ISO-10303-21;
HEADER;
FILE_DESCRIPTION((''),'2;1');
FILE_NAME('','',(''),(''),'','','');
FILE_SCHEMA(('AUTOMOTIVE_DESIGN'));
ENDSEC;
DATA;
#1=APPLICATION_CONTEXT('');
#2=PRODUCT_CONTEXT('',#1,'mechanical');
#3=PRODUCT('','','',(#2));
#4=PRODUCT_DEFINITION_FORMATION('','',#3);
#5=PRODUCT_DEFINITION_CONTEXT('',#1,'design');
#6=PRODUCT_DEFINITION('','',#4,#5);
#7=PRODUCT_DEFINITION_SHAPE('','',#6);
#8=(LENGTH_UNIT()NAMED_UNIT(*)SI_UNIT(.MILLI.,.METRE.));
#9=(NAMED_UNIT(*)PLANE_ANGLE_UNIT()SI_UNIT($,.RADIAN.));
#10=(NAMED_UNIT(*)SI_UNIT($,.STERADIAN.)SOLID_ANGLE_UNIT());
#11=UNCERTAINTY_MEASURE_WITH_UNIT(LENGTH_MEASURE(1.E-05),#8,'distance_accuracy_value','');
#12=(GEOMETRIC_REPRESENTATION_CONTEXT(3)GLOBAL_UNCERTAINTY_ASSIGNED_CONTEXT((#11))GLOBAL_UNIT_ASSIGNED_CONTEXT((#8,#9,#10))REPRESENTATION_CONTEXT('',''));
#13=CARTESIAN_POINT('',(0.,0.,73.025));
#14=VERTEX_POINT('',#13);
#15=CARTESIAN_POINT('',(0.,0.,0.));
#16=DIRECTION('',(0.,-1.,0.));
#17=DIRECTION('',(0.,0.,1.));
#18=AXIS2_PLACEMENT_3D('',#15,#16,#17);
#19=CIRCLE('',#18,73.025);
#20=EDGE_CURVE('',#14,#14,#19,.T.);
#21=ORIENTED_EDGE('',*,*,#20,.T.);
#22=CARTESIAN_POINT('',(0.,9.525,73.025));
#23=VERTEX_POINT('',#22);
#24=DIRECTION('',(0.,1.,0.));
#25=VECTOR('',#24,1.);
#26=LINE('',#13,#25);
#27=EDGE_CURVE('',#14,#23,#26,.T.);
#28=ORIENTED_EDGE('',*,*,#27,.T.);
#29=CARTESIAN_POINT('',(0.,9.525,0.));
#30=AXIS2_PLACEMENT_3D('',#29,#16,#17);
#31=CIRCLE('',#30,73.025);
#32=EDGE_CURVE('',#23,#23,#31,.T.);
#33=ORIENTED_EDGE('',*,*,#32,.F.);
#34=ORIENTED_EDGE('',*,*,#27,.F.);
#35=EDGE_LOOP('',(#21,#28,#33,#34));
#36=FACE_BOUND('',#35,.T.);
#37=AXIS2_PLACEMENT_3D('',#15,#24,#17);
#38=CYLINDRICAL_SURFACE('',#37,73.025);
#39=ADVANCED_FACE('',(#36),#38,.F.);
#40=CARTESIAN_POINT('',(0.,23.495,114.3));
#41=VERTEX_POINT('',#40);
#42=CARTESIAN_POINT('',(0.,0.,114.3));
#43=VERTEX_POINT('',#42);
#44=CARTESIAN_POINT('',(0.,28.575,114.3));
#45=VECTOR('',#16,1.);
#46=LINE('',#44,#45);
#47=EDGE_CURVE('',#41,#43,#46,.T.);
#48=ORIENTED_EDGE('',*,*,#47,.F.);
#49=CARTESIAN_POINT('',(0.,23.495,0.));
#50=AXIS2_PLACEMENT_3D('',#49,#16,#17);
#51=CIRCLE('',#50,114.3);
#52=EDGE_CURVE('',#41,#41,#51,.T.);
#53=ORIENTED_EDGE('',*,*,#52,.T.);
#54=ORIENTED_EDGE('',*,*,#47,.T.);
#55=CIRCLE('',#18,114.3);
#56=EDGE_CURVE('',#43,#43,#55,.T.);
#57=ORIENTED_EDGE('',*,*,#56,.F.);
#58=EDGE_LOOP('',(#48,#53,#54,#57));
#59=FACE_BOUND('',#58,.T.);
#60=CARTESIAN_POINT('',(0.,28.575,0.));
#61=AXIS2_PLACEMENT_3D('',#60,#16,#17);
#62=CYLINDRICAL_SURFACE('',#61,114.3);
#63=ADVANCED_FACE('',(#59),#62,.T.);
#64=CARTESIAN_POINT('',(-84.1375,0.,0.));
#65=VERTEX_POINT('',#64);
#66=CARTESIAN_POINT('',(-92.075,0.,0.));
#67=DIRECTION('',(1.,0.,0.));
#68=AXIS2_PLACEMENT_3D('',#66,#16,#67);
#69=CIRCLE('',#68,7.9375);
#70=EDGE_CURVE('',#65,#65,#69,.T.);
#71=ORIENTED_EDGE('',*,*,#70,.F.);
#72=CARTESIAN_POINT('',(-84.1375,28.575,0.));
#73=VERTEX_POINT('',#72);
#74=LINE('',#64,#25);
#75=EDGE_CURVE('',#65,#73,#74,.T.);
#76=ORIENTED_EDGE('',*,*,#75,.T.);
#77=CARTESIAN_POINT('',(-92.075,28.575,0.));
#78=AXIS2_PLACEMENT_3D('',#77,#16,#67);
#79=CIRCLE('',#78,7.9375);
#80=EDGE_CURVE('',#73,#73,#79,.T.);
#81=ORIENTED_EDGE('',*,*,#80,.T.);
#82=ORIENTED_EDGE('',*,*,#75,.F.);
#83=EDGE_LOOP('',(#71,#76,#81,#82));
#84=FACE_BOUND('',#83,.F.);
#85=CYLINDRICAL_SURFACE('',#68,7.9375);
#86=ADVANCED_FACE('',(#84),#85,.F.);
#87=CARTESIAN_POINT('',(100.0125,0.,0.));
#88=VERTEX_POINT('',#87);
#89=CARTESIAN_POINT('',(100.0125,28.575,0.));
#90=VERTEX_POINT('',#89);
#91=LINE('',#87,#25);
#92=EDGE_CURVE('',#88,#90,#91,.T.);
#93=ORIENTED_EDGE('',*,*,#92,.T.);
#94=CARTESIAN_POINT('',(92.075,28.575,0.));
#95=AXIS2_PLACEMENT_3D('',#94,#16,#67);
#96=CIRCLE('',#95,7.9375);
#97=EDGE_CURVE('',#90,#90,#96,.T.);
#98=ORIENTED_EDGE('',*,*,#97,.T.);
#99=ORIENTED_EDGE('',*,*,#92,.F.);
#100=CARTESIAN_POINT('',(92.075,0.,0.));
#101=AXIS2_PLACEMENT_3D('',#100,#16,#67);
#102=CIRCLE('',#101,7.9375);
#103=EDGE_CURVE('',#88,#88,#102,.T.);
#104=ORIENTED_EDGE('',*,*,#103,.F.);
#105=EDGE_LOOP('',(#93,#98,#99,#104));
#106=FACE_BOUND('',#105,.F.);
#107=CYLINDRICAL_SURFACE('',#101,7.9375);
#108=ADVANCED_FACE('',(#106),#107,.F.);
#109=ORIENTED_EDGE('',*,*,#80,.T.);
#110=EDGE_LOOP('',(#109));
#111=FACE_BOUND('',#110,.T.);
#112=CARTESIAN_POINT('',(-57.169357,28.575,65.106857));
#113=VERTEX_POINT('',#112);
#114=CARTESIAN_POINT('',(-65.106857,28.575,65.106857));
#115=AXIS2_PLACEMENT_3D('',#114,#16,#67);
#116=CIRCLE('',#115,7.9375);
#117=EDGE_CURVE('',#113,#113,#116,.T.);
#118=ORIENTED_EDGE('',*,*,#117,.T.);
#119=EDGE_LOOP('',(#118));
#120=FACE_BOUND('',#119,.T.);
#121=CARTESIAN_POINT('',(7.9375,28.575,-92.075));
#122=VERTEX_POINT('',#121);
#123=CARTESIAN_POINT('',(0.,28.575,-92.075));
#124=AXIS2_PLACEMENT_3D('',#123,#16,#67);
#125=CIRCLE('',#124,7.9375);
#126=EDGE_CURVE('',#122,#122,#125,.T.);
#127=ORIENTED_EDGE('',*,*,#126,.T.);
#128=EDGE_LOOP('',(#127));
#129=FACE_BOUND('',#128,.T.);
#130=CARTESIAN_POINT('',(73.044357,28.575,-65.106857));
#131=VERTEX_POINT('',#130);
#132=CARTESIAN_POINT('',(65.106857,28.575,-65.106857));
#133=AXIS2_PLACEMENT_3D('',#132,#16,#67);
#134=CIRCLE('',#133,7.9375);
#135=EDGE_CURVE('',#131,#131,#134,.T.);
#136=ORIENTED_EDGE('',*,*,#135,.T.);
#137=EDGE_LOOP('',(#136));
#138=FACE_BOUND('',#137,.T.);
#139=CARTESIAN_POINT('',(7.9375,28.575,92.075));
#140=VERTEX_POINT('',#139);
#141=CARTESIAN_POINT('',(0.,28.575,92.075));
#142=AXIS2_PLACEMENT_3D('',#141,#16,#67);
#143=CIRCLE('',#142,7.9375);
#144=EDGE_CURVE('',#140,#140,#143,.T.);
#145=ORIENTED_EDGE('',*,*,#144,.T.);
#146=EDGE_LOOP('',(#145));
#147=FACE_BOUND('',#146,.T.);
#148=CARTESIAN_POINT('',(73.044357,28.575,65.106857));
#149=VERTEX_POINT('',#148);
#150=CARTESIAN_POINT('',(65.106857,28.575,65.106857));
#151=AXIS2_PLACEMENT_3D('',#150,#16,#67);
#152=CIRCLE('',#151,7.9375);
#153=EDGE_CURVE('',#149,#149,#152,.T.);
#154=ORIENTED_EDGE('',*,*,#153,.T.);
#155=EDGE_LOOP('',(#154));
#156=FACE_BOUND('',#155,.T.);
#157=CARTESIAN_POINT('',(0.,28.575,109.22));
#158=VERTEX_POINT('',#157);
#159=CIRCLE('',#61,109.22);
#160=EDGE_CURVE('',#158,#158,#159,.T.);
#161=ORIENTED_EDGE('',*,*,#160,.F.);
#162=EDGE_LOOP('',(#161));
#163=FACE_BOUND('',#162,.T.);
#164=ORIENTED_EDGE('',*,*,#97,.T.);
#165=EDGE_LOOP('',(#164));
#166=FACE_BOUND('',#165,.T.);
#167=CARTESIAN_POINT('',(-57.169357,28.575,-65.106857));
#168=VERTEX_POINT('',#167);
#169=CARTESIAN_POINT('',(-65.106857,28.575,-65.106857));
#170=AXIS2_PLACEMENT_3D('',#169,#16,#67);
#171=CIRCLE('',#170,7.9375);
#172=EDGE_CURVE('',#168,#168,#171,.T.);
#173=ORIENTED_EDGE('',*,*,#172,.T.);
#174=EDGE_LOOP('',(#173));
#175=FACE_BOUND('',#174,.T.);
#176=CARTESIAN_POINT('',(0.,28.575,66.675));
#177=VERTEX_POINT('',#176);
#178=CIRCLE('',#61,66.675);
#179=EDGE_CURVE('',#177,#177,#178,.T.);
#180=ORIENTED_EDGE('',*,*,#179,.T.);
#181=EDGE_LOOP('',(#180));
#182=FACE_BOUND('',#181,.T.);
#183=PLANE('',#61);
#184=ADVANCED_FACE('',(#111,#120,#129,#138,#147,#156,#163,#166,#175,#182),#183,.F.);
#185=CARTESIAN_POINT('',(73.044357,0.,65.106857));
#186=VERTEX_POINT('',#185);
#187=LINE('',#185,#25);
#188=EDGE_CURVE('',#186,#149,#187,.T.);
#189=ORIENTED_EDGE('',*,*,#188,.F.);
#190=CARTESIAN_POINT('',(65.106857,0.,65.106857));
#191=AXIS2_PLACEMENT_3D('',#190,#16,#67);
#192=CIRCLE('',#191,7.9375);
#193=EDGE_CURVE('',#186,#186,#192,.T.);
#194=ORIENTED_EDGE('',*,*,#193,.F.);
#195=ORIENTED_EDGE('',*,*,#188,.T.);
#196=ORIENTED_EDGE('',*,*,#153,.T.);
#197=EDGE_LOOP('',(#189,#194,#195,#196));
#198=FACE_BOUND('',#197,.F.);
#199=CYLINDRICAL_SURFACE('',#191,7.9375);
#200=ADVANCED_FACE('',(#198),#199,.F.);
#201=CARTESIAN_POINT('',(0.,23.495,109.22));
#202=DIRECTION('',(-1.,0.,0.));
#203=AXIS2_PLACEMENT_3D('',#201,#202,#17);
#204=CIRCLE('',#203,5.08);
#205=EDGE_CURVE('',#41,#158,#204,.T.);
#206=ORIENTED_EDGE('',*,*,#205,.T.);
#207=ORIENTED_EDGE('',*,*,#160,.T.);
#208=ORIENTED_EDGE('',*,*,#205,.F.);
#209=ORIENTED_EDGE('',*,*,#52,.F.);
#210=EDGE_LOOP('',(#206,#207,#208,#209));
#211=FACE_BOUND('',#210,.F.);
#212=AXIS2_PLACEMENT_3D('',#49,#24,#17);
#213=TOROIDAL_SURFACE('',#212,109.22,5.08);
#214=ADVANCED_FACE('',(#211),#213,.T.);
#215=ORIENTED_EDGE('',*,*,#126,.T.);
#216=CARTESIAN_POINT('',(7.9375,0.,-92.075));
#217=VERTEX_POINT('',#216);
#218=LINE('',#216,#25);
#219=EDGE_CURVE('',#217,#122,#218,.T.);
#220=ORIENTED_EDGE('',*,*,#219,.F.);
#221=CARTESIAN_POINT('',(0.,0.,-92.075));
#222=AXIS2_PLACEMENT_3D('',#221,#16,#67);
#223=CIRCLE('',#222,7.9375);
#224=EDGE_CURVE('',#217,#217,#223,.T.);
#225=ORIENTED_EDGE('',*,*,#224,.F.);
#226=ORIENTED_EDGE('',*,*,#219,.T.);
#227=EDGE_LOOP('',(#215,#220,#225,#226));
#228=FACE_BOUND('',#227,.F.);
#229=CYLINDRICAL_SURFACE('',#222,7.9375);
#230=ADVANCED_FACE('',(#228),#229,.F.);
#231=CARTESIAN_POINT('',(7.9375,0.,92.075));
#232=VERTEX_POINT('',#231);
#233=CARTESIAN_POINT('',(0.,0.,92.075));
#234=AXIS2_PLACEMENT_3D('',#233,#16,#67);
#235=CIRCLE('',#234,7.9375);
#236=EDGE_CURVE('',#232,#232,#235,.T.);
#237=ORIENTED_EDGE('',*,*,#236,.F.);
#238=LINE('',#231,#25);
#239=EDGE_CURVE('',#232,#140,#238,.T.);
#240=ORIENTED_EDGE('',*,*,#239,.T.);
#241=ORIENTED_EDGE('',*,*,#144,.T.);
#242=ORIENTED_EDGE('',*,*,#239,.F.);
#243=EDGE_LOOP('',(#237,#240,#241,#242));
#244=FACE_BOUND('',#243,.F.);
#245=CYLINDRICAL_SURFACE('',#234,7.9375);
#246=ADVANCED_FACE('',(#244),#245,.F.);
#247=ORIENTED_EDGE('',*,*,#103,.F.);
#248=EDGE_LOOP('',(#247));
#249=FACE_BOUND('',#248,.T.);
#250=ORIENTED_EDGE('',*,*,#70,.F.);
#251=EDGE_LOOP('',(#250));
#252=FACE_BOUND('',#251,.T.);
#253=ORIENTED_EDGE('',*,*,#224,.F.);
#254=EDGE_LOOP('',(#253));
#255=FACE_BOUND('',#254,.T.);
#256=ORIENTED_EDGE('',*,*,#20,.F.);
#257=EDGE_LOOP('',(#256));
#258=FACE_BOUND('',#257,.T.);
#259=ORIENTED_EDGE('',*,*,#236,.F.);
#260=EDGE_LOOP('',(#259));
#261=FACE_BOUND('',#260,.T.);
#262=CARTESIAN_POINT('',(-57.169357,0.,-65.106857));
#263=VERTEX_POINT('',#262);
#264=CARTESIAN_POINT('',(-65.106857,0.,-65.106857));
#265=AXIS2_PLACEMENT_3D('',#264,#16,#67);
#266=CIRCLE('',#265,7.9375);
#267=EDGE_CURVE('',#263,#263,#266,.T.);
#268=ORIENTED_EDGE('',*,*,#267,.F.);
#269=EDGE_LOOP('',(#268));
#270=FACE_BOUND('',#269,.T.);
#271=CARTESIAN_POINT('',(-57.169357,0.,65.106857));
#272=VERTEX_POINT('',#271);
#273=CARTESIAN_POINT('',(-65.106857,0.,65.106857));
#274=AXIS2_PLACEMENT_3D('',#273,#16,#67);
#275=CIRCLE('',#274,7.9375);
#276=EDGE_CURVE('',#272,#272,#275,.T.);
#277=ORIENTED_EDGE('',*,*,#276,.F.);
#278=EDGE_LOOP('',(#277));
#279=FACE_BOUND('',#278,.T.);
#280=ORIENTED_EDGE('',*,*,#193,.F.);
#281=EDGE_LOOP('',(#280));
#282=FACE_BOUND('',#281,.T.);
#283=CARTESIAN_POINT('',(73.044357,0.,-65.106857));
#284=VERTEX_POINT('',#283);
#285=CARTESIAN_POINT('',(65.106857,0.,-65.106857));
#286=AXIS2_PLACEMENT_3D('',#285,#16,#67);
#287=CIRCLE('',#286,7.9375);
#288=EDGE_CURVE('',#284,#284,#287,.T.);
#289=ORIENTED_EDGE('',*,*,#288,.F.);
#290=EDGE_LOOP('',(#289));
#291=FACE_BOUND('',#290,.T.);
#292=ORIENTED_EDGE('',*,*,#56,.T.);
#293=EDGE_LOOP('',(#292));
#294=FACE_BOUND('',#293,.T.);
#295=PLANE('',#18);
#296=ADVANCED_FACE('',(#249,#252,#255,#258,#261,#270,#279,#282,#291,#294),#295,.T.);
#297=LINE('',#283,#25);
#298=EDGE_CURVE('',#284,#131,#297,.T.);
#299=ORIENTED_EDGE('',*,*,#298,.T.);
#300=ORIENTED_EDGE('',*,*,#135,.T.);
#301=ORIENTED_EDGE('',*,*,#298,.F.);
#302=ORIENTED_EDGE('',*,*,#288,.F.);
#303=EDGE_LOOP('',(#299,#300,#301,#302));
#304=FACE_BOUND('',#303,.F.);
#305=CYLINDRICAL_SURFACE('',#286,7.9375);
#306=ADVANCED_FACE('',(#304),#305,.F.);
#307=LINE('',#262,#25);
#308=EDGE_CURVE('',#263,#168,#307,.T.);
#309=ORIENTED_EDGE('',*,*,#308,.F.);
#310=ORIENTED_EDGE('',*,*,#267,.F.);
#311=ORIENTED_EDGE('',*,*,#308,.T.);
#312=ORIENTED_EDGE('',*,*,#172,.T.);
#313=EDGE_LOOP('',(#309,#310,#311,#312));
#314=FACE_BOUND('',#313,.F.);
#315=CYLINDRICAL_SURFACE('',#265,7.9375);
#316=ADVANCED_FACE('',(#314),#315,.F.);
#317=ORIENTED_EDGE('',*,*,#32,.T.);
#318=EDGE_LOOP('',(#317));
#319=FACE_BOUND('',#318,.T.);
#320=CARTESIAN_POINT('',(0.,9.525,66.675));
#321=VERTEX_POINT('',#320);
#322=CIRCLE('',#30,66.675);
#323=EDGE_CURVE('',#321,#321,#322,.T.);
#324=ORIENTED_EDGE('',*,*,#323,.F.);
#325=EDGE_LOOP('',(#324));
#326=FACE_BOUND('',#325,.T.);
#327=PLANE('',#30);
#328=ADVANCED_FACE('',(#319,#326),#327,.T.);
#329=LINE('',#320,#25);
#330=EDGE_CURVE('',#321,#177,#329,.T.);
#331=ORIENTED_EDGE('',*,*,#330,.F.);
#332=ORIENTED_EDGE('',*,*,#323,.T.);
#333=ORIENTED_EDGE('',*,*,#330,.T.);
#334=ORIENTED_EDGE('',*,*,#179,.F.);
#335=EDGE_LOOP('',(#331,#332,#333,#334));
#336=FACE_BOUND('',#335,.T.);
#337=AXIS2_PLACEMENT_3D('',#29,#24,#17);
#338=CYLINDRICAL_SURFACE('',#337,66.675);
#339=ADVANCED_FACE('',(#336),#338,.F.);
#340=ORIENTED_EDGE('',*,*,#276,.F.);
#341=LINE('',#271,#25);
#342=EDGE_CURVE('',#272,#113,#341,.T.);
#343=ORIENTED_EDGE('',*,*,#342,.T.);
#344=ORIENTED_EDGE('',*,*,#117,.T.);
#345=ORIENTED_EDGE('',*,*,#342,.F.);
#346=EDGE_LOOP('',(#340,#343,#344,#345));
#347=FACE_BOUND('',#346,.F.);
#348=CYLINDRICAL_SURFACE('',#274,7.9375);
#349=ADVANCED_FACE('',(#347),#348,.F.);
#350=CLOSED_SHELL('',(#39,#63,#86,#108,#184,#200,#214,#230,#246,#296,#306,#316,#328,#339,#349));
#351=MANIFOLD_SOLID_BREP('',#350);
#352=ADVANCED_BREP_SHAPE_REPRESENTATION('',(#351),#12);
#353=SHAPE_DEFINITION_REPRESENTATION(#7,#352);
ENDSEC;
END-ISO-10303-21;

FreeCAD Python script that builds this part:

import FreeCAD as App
import Part
import Sketcher
from FreeCAD import Vector
Q = App.Units.Quantity


def edges_at(feature, points):
    """Names of the edges that pass closest to the given points."""
    edges = feature.Shape.Edges
    near = lambda p: min(range(len(edges)), key=lambda i: edges[i].distToShape(Part.Vertex(*p))[0])
    return sorted({f"Edge{near(p) + 1}" for p in points})


def add_polygon(sketch, points):
    """Adds a closed chain of lines whose ends are joined by coincident constraints."""
    first, n = sketch.GeometryCount, len(points)
    for a, b in zip(points, points[1:] + points[:1]):
        sketch.addGeometry(Part.LineSegment(App.Vector(*a, 0), App.Vector(*b, 0)), False)
    for i in range(n):
        sketch.addConstraint(Sketcher.Constraint("Coincident", first + i, 2, first + (i + 1) % n, 1))

doc = App.newDocument("Part")
params = doc.addObject("Spreadsheet::Sheet", "Params")
for row, (alias, value) in enumerate([
    ("sketch1_width", "0.75 in"),
    ("sketch1_height", "0.25 in"),
    ("sketch1_width2", "1.125 in"),
    ("sketch1_height2", "1.625 in"),
    ("revolution_angle", "360 deg"),
    ("sketch2_diameter", "0.625 in"),
    ("fillet_radius", "0.2 in"),
], start=1):
    params.set(f"A{row}", alias)
    params.set(f"B{row}", "=" + value)
    params.setAlias(f"B{row}", alias)

body = doc.addObject("PartDesign::Body", "Body")

sketch1 = doc.addObject("Sketcher::SketchObject", "Sketch")
body.addObject(sketch1)
sketch1.AttachmentSupport = (doc.YZ_Plane, [""])
sketch1.MapMode = "FlatFace"
add_polygon(sketch1, [(29, 114), (0, 114), (0, 73), (10, 73), (10, 67), (29, 67)])
sketch1.addConstraint([
    Sketcher.Constraint("Horizontal", 0),
    Sketcher.Constraint("Vertical", 1),
    Sketcher.Constraint("Horizontal", 2),
    Sketcher.Constraint("Vertical", 3),
    Sketcher.Constraint("Horizontal", 4),
    Sketcher.Constraint("Vertical", 5),
    Sketcher.Constraint("PointOnObject", 0, 2, -2),
    Sketcher.Constraint("DistanceX", 4, 1, 4, 2, Q("0.75 in")),
    Sketcher.Constraint("DistanceY", 3, 2, 3, 1, Q("0.25 in")),
    Sketcher.Constraint("DistanceY", -1, 1, 0, 2, Q("4.5 in")),
    Sketcher.Constraint("DistanceX", 0, 2, 0, 1, Q("1.125 in")),
    Sketcher.Constraint("DistanceY", 1, 2, 1, 1, Q("1.625 in")),
])
sketch1.setExpression("Constraints[13]", "Params.sketch1_width")
sketch1.setExpression("Constraints[14]", "Params.sketch1_height")
sketch1.setExpression("Constraints[16]", "Params.sketch1_width2")
sketch1.setExpression("Constraints[17]", "Params.sketch1_height2")
revolution = doc.addObject("PartDesign::Revolution", "Revolution")
body.addObject(revolution)
revolution.Profile = sketch1
revolution.ReferenceAxis = (sketch1, ["H_Axis"])
revolution.setExpression("Angle", "Params.revolution_angle")

sketch2 = doc.addObject("Sketcher::SketchObject", "Sketch001")
body.addObject(sketch2)
sketch2.AttachmentSupport = (doc.XZ_Plane, [""])
sketch2.MapMode = "FlatFace"
sketch2.addGeometry([
    Part.Circle(Vector(0, 92, 0), Vector(0, 0, 1), 8),
    Part.Circle(Vector(-65, 65, 0), Vector(0, 0, 1), 8),
    Part.Circle(Vector(-92, 0, 0), Vector(0, 0, 1), 8),
    Part.Circle(Vector(-65, -65, 0), Vector(0, 0, 1), 8),
    Part.Circle(Vector(0, -92, 0), Vector(0, 0, 1), 8),
    Part.Circle(Vector(65, -65, 0), Vector(0, 0, 1), 8),
    Part.Circle(Vector(92, 0, 0), Vector(0, 0, 1), 8),
    Part.Circle(Vector(65, 65, 0), Vector(0, 0, 1), 8),
], False)
sketch2.addConstraint([
    Sketcher.Constraint("Equal", 0, 1),
    Sketcher.Constraint("Equal", 1, 2),
    Sketcher.Constraint("Equal", 2, 3),
    Sketcher.Constraint("Equal", 3, 4),
    Sketcher.Constraint("Equal", 4, 5),
    Sketcher.Constraint("Equal", 5, 6),
    Sketcher.Constraint("Equal", 6, 7),
    Sketcher.Constraint("Symmetric", 0, 3, 4, 3, -1, 1),
    Sketcher.Constraint("Symmetric", 1, 3, 5, 3, -1, 1),
    Sketcher.Constraint("Symmetric", 2, 3, 6, 3, -1, 1),
    Sketcher.Constraint("Symmetric", 3, 3, 7, 3, -1, 1),
    Sketcher.Constraint("Symmetric", 3, 3, 5, 3, -2),
    Sketcher.Constraint("PointOnObject", 0, 3, -2),
    Sketcher.Constraint("PointOnObject", 2, 3, -1),
    Sketcher.Constraint("Diameter", 0, Q("0.625 in")),
    Sketcher.Constraint("DistanceY", 4, 3, 0, 3, Q("7.25 in")),
    Sketcher.Constraint("DistanceX", 2, 3, -1, 1, Q("3.625 in")),
    Sketcher.Constraint("DistanceX", 1, 3, -1, 1, Q("65.106857 mm")),
    Sketcher.Constraint("DistanceY", -1, 1, 1, 3, Q("65.106857 mm")),
])
sketch2.setExpression("Constraints[14]", "Params.sketch2_diameter")
pocket1 = doc.addObject("PartDesign::Pocket", "Pocket")
body.addObject(pocket1)
pocket1.Profile = sketch2
pocket1.Type = "ThroughAll"
doc.recompute()

fillet = doc.addObject("PartDesign::Fillet", "Fillet")
body.addObject(fillet)
fillet.Base = (pocket1, edges_at(pocket1, [(0, 28.575, -114.3)]))
fillet.setExpression("Radius", "Params.fillet_radius")

doc.recompute()
